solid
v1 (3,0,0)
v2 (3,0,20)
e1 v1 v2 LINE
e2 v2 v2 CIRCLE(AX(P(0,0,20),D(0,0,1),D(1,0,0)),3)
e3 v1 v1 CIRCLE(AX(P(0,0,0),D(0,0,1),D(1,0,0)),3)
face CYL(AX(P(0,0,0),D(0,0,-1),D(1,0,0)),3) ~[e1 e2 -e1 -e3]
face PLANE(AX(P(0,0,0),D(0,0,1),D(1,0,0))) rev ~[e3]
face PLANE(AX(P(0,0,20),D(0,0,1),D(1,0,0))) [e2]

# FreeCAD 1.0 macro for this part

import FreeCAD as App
import Part
import Sketcher
Q = App.Units.Quantity

doc = App.newDocument("Part")
body = doc.addObject("PartDesign::Body", "Body")

# Sketch on XY plane
sketch1 = body.newObject("Sketcher::SketchObject", "Sketch")
sketch1.AttachmentSupport = (doc.getObject("XY_Plane"), [""])
sketch1.MapMode = "FlatFace"
sketch1.addGeometry(Part.Circle(App.Vector(0, 0, 0), App.Vector(0, 0, 1), 3), False)
sketch1.addConstraint([
    Sketcher.Constraint("Coincident", 0, 3, -1, 1),
    Sketcher.Constraint("Diameter", 0, Q("6 mm")),
])
pad1 = body.newObject("PartDesign::Pad", "Pad")
pad1.Profile = sketch1
pad1.Length = 20

doc.recompute()
